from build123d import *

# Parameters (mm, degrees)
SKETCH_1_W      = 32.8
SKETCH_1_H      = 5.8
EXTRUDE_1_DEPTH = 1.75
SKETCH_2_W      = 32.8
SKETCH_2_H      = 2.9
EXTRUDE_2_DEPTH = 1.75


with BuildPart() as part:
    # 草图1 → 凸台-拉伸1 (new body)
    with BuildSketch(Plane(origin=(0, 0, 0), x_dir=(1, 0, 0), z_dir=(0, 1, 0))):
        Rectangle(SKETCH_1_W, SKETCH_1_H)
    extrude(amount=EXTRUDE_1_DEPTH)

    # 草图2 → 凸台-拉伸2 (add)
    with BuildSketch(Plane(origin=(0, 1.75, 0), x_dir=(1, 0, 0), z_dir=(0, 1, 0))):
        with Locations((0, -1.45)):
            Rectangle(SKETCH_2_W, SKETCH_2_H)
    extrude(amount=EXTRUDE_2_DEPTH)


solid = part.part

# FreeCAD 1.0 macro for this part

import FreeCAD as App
import Part
import Sketcher

V = App.Vector
Q = App.Units.Quantity


def add_polygon(sketch, points):
    """Adds a closed chain of lines whose ends are joined by coincident constraints."""
    first, n = sketch.GeometryCount, len(points)
    for a, b in zip(points, points[1:] + points[:1]):
        sketch.addGeometry(Part.LineSegment(App.Vector(*a, 0), App.Vector(*b, 0)), False)
    for i in range(n):
        sketch.addConstraint(Sketcher.Constraint("Coincident", first + i, 2, first + (i + 1) % n, 1))

doc = App.newDocument("Part")
params = doc.addObject("Spreadsheet::Sheet", "Params")
for row, (alias, value) in enumerate([
    ("sketch1_width", "32.8 mm"),
    ("sketch1_height", "5.8 mm"),
    ("pad1_length", "1.75 mm"),
    ("sketch2_width", "32.8 mm"),
    ("sketch2_height", "2.9 mm"),
    ("pad2_length", "1.75 mm"),
], start=1):
    params.set(f"A{row}", alias)
    params.set(f"B{row}", "=" + value)
    params.setAlias(f"B{row}", alias)

body = doc.addObject("PartDesign::Body", "Body")

sketch1 = body.newObject("Sketcher::SketchObject", "Sketch")
sketch1.AttachmentSupport = (doc.getObject("XZ_Plane"), [""])
sketch1.MapMode = "FlatFace"
add_polygon(sketch1, [(-16, -3), (-16, 3), (16, 3), (16, -3)])
sketch1.addConstraint(Sketcher.Constraint("Vertical", 0))
sketch1.addConstraint(Sketcher.Constraint("Horizontal", 1))
sketch1.addConstraint(Sketcher.Constraint("Vertical", 2))
sketch1.addConstraint(Sketcher.Constraint("Horizontal", 3))
sketch1.addConstraint(Sketcher.Constraint("Symmetric", 0, 2, 2, 2, -1, 1))
sketch1.addConstraint(Sketcher.Constraint("DistanceX", 1, 1, 1, 2, Q("32.8 mm")))
sketch1.addConstraint(Sketcher.Constraint("DistanceY", 0, 1, 0, 2, Q("5.8 mm")))
sketch1.setExpression("Constraints[9]", "Params.sketch1_width")
sketch1.setExpression("Constraints[10]", "Params.sketch1_height")
pad1 = body.newObject("PartDesign::Pad", "Pad")
pad1.Profile = sketch1
pad1.setExpression("Length", "Params.pad1_length")
pad1.Reversed = True

sketch2 = body.newObject("Sketcher::SketchObject", "Sketch001")
sketch2.AttachmentSupport = (doc.getObject("XZ_Plane"), [""])
sketch2.MapMode = "FlatFace"
sketch2.AttachmentOffset = App.Placement(V(0, 0, -1.75), App.Rotation())
add_polygon(sketch2, [(-16.4, 0), (-16.4, 2.9), (16.4, 2.9), (16.4, 0)])
sketch2.addConstraint(Sketcher.Constraint("Vertical", 0))
sketch2.addConstraint(Sketcher.Constraint("Horizontal", 1))
sketch2.addConstraint(Sketcher.Constraint("Vertical", 2))
sketch2.addConstraint(Sketcher.Constraint("Horizontal", 3))
sketch2.addConstraint(Sketcher.Constraint("Symmetric", 2, 2, 3, 2, -1, 1))
sketch2.addConstraint(Sketcher.Constraint("DistanceX", 1, 1, 1, 2, Q("32.8 mm")))
sketch2.addConstraint(Sketcher.Constraint("DistanceY", 0, 1, 0, 2, Q("2.9 mm")))
sketch2.setExpression("Constraints[9]", "Params.sketch2_width")
sketch2.setExpression("Constraints[10]", "Params.sketch2_height")
pad2 = body.newObject("PartDesign::Pad", "Pad001")
pad2.Profile = sketch2
pad2.setExpression("Length", "Params.pad2_length")
pad2.Reversed = True

doc.recompute()
